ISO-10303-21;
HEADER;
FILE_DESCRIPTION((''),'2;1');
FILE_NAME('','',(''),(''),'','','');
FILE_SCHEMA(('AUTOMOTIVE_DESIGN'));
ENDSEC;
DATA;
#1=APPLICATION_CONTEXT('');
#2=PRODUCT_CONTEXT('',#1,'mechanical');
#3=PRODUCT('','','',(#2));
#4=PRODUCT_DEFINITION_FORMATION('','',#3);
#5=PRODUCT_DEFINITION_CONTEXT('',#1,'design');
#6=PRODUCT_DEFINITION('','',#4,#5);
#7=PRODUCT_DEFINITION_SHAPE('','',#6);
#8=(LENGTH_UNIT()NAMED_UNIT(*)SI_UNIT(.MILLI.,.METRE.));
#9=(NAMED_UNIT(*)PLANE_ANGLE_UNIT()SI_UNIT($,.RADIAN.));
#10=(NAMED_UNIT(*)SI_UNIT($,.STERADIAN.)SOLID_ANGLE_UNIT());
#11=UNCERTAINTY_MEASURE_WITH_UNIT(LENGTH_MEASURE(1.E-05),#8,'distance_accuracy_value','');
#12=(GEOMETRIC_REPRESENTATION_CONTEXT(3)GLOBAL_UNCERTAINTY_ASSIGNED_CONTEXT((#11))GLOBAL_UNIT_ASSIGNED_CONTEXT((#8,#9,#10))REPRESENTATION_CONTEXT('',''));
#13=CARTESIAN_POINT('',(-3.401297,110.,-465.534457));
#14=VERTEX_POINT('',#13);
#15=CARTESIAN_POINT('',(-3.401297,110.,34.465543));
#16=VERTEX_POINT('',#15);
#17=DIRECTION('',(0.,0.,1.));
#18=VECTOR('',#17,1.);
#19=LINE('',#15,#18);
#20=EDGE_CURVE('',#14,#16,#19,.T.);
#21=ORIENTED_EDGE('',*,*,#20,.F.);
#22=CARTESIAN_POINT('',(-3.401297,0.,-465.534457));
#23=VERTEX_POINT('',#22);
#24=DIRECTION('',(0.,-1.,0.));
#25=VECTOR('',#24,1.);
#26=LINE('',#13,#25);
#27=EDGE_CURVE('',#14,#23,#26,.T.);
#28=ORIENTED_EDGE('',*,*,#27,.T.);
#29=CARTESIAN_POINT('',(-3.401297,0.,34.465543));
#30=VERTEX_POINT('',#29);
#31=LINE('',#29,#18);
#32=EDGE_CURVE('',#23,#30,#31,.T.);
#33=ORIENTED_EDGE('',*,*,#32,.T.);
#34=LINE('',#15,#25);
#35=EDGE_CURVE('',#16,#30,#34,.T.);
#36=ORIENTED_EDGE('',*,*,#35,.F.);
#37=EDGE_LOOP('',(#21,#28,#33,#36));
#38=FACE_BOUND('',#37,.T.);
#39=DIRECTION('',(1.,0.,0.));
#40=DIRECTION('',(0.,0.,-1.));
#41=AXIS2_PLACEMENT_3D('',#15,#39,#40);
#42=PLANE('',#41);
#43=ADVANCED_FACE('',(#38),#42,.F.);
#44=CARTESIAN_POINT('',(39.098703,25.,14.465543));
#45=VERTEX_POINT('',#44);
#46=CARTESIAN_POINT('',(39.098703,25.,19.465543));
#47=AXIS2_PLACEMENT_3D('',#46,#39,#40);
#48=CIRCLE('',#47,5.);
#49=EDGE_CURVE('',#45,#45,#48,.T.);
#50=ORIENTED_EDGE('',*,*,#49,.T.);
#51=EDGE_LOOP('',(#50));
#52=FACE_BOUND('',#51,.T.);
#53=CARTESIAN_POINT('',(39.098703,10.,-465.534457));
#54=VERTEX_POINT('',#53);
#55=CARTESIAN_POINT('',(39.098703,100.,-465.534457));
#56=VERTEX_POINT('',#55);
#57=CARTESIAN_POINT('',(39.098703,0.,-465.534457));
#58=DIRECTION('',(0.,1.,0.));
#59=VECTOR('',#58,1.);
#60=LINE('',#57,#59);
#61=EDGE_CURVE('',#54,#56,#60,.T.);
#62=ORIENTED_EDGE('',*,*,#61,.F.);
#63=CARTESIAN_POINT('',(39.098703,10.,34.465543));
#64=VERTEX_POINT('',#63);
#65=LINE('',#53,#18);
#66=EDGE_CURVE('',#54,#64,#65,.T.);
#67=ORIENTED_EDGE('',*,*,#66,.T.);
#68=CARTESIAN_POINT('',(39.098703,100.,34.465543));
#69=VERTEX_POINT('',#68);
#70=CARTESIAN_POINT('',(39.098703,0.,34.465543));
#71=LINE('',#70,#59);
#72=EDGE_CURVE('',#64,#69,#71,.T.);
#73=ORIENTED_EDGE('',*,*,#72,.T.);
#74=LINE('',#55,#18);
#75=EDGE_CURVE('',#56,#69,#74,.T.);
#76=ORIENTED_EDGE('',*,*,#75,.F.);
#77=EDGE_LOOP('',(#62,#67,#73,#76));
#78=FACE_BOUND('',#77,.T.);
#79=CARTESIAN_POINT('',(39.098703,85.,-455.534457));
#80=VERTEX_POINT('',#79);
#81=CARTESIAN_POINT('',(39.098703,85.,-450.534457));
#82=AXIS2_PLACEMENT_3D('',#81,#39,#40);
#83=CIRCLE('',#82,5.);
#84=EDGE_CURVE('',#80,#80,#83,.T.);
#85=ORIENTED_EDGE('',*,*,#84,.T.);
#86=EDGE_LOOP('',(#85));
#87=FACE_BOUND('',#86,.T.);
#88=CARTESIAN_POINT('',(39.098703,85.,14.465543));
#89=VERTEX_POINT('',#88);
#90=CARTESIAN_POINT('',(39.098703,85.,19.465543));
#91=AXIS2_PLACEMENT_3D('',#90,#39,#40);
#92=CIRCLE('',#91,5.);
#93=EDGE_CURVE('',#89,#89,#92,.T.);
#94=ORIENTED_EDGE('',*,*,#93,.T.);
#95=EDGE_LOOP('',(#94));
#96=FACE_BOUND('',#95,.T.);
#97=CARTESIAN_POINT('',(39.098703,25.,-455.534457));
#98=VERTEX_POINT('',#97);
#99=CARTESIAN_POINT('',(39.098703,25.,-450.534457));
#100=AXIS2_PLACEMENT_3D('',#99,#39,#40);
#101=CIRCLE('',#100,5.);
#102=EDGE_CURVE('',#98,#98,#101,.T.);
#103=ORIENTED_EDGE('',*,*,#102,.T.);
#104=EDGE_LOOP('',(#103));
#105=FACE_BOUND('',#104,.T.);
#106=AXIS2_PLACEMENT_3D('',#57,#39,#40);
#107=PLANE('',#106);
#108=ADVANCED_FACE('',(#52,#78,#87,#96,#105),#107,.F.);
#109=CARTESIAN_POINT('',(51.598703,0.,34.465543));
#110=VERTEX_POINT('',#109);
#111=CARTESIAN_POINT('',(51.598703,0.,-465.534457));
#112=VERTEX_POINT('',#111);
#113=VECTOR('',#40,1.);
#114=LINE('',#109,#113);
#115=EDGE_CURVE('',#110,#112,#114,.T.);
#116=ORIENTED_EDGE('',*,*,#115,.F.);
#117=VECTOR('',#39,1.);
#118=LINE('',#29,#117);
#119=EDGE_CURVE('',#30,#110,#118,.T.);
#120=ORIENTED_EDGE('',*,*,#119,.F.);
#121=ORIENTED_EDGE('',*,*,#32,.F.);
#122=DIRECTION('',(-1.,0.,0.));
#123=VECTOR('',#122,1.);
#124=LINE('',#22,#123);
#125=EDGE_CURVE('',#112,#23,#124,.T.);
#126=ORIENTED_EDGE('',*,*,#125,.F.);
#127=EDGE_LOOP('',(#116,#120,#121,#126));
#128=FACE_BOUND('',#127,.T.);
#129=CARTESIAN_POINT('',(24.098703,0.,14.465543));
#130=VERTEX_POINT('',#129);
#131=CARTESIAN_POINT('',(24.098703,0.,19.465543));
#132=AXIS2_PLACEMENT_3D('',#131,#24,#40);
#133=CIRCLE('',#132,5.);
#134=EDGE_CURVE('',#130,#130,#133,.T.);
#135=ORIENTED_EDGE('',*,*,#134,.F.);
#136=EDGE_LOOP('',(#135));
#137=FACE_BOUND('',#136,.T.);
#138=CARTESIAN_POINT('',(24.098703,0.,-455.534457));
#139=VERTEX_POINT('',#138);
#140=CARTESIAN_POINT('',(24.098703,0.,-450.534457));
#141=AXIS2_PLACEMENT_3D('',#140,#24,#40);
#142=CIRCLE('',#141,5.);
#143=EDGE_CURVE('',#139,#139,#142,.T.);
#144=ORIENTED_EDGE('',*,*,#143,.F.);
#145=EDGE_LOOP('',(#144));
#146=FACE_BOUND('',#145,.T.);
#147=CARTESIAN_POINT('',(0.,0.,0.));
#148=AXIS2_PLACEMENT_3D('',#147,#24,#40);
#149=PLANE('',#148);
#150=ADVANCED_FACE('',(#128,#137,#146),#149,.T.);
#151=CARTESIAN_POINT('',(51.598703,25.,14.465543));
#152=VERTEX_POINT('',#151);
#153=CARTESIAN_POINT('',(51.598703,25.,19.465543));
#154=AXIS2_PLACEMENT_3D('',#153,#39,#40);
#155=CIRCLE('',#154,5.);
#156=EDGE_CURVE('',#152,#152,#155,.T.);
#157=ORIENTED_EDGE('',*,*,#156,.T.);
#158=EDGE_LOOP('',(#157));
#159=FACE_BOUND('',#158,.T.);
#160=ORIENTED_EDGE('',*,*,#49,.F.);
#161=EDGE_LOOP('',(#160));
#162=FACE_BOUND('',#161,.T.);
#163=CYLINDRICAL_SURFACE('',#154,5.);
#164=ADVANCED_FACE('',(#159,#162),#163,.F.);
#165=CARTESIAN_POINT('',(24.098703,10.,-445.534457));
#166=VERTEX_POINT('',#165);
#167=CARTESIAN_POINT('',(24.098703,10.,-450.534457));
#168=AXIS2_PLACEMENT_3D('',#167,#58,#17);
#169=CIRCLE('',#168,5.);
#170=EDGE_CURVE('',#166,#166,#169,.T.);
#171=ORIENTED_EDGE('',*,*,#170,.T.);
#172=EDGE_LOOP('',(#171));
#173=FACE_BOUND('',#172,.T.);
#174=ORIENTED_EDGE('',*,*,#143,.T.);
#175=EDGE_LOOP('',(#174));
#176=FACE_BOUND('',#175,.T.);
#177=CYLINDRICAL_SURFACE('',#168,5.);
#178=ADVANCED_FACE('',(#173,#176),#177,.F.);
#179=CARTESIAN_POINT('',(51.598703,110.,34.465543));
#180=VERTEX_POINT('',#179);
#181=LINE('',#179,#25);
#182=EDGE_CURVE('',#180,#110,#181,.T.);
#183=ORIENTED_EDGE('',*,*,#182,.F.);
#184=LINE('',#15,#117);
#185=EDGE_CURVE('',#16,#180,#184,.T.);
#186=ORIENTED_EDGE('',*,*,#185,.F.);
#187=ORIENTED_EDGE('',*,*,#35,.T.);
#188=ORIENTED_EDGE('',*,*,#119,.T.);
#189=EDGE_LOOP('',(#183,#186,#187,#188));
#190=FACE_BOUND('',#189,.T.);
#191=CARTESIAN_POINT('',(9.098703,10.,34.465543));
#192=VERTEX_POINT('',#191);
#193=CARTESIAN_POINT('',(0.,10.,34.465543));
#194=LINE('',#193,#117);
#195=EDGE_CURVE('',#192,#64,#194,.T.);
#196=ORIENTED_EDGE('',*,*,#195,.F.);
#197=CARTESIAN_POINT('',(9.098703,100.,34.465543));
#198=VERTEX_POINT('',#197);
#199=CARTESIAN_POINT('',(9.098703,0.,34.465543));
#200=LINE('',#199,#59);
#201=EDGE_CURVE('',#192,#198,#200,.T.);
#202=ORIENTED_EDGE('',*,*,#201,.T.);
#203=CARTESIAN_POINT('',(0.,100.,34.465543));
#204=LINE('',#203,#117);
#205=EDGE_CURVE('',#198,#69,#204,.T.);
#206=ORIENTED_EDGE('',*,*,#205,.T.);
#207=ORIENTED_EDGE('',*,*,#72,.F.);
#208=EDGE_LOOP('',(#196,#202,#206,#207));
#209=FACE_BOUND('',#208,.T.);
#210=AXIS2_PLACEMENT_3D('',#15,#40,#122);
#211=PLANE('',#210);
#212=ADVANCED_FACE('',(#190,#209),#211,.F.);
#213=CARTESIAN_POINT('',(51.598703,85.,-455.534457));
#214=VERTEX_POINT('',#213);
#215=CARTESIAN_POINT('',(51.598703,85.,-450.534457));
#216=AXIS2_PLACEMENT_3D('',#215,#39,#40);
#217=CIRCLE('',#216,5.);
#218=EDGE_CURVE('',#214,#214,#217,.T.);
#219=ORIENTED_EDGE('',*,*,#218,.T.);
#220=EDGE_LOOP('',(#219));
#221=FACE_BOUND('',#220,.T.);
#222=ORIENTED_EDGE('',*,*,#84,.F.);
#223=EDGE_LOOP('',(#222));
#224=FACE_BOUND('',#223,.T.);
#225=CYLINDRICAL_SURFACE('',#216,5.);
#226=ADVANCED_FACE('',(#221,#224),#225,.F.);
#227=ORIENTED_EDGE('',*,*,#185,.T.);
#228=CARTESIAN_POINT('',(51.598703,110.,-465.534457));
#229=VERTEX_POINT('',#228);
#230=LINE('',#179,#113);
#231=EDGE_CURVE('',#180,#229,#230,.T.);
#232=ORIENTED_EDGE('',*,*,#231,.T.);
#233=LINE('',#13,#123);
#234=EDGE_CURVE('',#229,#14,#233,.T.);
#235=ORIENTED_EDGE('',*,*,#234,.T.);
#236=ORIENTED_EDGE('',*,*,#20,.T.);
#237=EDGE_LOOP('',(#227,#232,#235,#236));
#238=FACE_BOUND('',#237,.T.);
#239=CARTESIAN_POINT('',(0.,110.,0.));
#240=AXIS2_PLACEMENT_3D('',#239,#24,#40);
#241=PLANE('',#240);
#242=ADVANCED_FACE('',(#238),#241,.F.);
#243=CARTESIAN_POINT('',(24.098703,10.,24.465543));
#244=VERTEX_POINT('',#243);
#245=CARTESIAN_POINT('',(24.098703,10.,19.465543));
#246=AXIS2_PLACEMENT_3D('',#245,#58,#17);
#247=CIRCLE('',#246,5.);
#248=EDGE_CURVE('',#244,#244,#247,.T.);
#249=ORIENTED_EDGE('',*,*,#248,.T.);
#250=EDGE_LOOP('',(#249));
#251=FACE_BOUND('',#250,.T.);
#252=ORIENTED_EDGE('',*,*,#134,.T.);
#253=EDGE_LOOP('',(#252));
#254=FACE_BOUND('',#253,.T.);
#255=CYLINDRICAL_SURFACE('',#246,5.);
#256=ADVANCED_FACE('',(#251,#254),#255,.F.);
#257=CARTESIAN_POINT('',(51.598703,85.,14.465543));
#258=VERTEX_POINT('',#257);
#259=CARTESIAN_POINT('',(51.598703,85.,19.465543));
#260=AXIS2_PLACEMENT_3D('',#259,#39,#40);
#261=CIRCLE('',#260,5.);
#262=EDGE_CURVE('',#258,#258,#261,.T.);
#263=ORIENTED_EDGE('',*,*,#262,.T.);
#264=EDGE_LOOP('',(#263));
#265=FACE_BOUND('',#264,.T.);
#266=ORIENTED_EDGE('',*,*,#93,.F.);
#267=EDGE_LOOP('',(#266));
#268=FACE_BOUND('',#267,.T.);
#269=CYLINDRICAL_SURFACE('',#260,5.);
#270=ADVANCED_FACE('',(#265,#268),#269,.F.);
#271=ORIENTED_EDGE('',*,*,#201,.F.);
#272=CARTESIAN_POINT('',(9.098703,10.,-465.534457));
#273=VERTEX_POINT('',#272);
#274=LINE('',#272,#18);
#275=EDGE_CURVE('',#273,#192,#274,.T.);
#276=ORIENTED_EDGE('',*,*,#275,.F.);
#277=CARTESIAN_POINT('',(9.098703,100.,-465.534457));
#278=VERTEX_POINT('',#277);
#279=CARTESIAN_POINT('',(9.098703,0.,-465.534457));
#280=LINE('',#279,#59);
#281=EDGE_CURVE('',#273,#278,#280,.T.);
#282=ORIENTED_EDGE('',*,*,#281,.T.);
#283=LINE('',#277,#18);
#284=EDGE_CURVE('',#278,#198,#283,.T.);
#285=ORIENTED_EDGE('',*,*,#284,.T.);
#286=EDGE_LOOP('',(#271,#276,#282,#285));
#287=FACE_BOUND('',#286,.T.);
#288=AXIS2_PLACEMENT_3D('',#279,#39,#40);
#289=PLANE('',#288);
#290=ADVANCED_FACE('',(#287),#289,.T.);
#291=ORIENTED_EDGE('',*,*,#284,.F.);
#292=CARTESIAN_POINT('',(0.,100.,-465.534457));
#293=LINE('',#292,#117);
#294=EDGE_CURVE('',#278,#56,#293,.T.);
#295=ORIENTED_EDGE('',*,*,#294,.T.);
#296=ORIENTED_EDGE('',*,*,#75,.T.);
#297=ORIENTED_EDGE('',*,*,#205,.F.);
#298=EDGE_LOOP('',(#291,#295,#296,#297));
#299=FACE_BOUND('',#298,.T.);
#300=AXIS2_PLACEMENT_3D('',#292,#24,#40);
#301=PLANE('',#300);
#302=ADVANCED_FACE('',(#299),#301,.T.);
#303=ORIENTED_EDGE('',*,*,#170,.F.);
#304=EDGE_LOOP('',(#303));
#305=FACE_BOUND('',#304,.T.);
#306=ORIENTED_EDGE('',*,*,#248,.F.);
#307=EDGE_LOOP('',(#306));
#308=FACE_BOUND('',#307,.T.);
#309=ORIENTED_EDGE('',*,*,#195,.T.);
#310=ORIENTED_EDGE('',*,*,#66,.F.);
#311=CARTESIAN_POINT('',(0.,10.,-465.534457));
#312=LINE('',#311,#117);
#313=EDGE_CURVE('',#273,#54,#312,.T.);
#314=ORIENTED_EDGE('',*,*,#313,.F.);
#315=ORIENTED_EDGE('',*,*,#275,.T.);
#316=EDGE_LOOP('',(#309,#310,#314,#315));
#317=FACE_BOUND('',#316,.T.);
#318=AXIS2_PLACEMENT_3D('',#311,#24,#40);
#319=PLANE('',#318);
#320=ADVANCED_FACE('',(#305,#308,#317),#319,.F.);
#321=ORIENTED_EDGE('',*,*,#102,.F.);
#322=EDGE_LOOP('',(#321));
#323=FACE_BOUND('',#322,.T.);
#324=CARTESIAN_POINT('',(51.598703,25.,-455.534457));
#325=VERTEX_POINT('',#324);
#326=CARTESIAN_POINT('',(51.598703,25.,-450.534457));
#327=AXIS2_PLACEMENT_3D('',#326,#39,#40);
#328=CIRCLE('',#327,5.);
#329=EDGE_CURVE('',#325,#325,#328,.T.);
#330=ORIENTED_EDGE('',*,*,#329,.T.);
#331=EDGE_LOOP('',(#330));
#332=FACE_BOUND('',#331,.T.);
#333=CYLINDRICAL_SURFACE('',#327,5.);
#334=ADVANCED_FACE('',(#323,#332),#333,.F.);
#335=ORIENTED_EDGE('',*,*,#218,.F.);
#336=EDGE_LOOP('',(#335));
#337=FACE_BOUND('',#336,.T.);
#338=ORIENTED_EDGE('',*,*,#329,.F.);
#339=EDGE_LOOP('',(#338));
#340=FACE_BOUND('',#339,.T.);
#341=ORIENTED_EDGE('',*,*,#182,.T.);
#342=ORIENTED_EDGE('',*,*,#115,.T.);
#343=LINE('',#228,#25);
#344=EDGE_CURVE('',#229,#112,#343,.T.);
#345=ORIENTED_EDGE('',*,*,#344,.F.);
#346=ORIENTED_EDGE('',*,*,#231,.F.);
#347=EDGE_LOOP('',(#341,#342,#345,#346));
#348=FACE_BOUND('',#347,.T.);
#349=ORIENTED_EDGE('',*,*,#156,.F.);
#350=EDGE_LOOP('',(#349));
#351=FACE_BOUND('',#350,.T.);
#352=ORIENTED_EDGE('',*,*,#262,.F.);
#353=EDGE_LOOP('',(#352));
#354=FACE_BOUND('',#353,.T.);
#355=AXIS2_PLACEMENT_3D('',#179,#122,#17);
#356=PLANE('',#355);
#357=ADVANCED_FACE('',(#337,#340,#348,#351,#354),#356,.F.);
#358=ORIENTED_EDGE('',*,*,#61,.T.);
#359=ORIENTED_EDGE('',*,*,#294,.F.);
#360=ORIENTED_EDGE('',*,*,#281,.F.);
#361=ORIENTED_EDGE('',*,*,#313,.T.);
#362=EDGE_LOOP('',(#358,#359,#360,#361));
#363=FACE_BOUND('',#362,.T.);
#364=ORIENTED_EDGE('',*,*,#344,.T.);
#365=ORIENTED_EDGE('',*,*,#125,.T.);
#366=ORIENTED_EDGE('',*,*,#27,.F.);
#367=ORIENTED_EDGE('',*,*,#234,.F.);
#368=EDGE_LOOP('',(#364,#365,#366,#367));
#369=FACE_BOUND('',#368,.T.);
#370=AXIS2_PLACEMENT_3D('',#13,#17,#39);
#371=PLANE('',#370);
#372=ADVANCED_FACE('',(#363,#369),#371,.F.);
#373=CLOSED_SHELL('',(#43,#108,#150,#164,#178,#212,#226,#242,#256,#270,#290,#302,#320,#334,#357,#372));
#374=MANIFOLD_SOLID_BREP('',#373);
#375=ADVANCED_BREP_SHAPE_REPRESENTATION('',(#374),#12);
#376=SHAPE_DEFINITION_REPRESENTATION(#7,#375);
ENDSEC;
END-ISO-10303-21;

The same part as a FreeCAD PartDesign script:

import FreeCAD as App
import Part
import Sketcher
from FreeCAD import Vector
Q = App.Units.Quantity


def add_polygon(sketch, points):
    """Adds a closed chain of lines whose ends are joined by coincident constraints."""
    first, n = sketch.GeometryCount, len(points)
    for a, b in zip(points, points[1:] + points[:1]):
        sketch.addGeometry(Part.LineSegment(App.Vector(*a, 0), App.Vector(*b, 0)), False)
    for i in range(n):
        sketch.addConstraint(Sketcher.Constraint("Coincident", first + i, 2, first + (i + 1) % n, 1))

doc = App.newDocument("Part")
params = doc.addObject("Spreadsheet::Sheet", "Params")
for row, (alias, value) in enumerate([
    ("sketch1_width", "55 mm"),
    ("sketch1_height", "500 mm"),
    ("pad1_length", "110 mm"),
    ("sketch2_width", "30 mm"),
    ("sketch2_height", "90 mm"),
    ("pocket1_length", "500 mm"),
    ("sketch3_diameter", "9 mm"),
    ("hole_diameter", "9 mm"),
    ("hole_depth", "23 mm"),
    ("hole_cbore_diameter", "10 mm"),
    ("hole_cbore_depth", "20 mm"),
    ("sketch4_diameter", "9 mm"),
    ("hole2_diameter", "9 mm"),
    ("hole2_depth", "23 mm"),
    ("hole2_cbore_diameter", "10 mm"),
    ("hole2_cbore_depth", "20 mm"),
    ("sketch5_diameter", "9 mm"),
    ("hole3_diameter", "9 mm"),
    ("hole3_depth", "23 mm"),
    ("hole3_cbore_diameter", "10 mm"),
    ("hole3_cbore_depth", "20 mm"),
], start=1):
    params.set(f"A{row}", alias)
    params.set(f"B{row}", "=" + value)
    params.setAlias(f"B{row}", alias)

body = doc.addObject("PartDesign::Body", "Body")

# Sketch on XZ plane
sketch1 = body.newObject("Sketcher::SketchObject", "Sketch")
sketch1.AttachmentSupport = (doc.getObject("XZ_Plane"), [""])
sketch1.MapMode = "FlatFace"
add_polygon(sketch1, [(-3, -466), (-3, 34), (52, 34), (52, -466)])  # lines 0-3
sketch1.addConstraint(Sketcher.Constraint("Vertical", 0))
sketch1.addConstraint(Sketcher.Constraint("Horizontal", 1))
sketch1.addConstraint(Sketcher.Constraint("Vertical", 2))
sketch1.addConstraint(Sketcher.Constraint("Horizontal", 3))
sketch1.addConstraint(Sketcher.Constraint("DistanceX", 1, 1, 1, 2, Q("55 mm")))
sketch1.addConstraint(Sketcher.Constraint("DistanceY", 0, 1, 0, 2, Q("500 mm")))
sketch1.addConstraint(Sketcher.Constraint("DistanceX", 0, 2, -1, 1, Q("3.401297 mm")))
sketch1.addConstraint(Sketcher.Constraint("DistanceY", -1, 1, 0, 2, Q("34.465543 mm")))
sketch1.setExpression("Constraints[8]", "Params.sketch1_width")
sketch1.setExpression("Constraints[9]", "Params.sketch1_height")
pad1 = body.newObject("PartDesign::Pad", "Pad")
pad1.Profile = sketch1
pad1.setExpression("Length", "Params.pad1_length")
pad1.Reversed = True

# Sketch on XY plane
sketch2 = body.newObject("Sketcher::SketchObject", "Sketch001")
sketch2.AttachmentSupport = (doc.getObject("XY_Plane"), [""])
sketch2.MapMode = "FlatFace"
sketch2.AttachmentOffset = App.Placement(Vector(0, 0, 34.465543), App.Rotation())
add_polygon(sketch2, [(9, 100), (9, 10), (39, 10), (39, 100)])  # lines 0-3
sketch2.addConstraint(Sketcher.Constraint("Vertical", 0))
sketch2.addConstraint(Sketcher.Constraint("Horizontal", 1))
sketch2.addConstraint(Sketcher.Constraint("Vertical", 2))
sketch2.addConstraint(Sketcher.Constraint("Horizontal", 3))
sketch2.addConstraint(Sketcher.Constraint("DistanceX", 1, 1, 1, 2, Q("30 mm")))
sketch2.addConstraint(Sketcher.Constraint("DistanceY", 0, 2, 0, 1, Q("90 mm")))
sketch2.addConstraint(Sketcher.Constraint("DistanceY", -1, 1, 0, 2, Q("10 mm")))
sketch2.addConstraint(Sketcher.Constraint("DistanceX", -1, 1, 0, 2, Q("9.098703 mm")))
sketch2.setExpression("Constraints[8]", "Params.sketch2_width")
sketch2.setExpression("Constraints[9]", "Params.sketch2_height")
pocket1 = body.newObject("PartDesign::Pocket", "Pocket")
pocket1.Profile = sketch2
pocket1.setExpression("Length", "Params.pocket1_length")

# Sketch on XZ plane
sketch3 = body.newObject("Sketcher::SketchObject", "Sketch002")
sketch3.AttachmentSupport = (doc.getObject("XZ_Plane"), [""])
sketch3.MapMode = "FlatFace"
sketch3.AttachmentOffset = App.Placement(Vector(0, 0, -10), App.Rotation())
sketch3.addGeometry(Part.Circle(Vector(24.1, -450.5, 0), Vector(0, 0, 1), 4.5), False)
sketch3.addGeometry(Part.Circle(Vector(24.1, 19.5, 0), Vector(0, 0, 1), 4.5), False)
sketch3.addConstraint(Sketcher.Constraint("Equal", 0, 1))
sketch3.addConstraint(Sketcher.Constraint("Vertical", 0, 3, 1, 3))
sketch3.addConstraint(Sketcher.Constraint("Diameter", 0, Q("9 mm")))
sketch3.addConstraint(Sketcher.Constraint("DistanceY", 0, 3, 1, 3, Q("470 mm")))
sketch3.addConstraint(Sketcher.Constraint("DistanceX", -1, 1, 0, 3, Q("24.098703 mm")))
sketch3.addConstraint(Sketcher.Constraint("DistanceY", 0, 3, -1, 1, Q("450.534457 mm")))
sketch3.setExpression("Constraints[2]", "Params.sketch3_diameter")
doc.recompute()
hole = body.newObject("PartDesign::Hole", "Hole")
hole.Profile = sketch3
hole.ThreadType = "None"
hole.setExpression("Diameter", "Params.hole_diameter")
hole.DepthType = "Dimension"
hole.setExpression("Depth", "Params.hole_depth")
hole.DrillPoint = "Angled"
hole.DrillPointAngle = 118
hole.HoleCutType = "Counterbore"
hole.setExpression("HoleCutDiameter", "Params.hole_cbore_diameter")
hole.setExpression("HoleCutDepth", "Params.hole_cbore_depth")
hole.Reversed = True

# Sketch on YZ plane
sketch4 = body.newObject("Sketcher::SketchObject", "Sketch003")
sketch4.AttachmentSupport = (doc.getObject("YZ_Plane"), [""])
sketch4.MapMode = "FlatFace"
sketch4.AttachmentOffset = App.Placement(Vector(0, 0, 51.598703), App.Rotation())
sketch4.addGeometry(Part.Circle(Vector(85, -450.5, 0), Vector(0, 0, 1), 4.5), False)
sketch4.addGeometry(Part.Circle(Vector(25, -450.5, 0), Vector(0, 0, 1), 4.5), False)
sketch4.addGeometry(Part.Circle(Vector(85, 19.5, 0), Vector(0, 0, 1), 4.5), False)
sketch4.addGeometry(Part.Circle(Vector(25, 19.5, 0), Vector(0, 0, 1), 4.5), False)
sketch4.addConstraint(Sketcher.Constraint("Equal", 0, 1))
sketch4.addConstraint(Sketcher.Constraint("Equal", 1, 2))
sketch4.addConstraint(Sketcher.Constraint("Equal", 2, 3))
sketch4.addConstraint(Sketcher.Constraint("Horizontal", 0, 3, 1, 3))
sketch4.addConstraint(Sketcher.Constraint("Horizontal", 2, 3, 3, 3))
sketch4.addConstraint(Sketcher.Constraint("Vertical", 0, 3, 2, 3))
sketch4.addConstraint(Sketcher.Constraint("Vertical", 1, 3, 3, 3))
sketch4.addConstraint(Sketcher.Constraint("Diameter", 0, Q("9 mm")))
sketch4.addConstraint(Sketcher.Constraint("DistanceX", -1, 1, 0, 3, Q("85 mm")))
sketch4.addConstraint(Sketcher.Constraint("DistanceX", -1, 1, 1, 3, Q("25 mm")))
sketch4.addConstraint(Sketcher.Constraint("DistanceY", 0, 3, 2, 3, Q("470 mm")))
sketch4.addConstraint(Sketcher.Constraint("DistanceY", 0, 3, -1, 1, Q("450.534457 mm")))
sketch4.setExpression("Constraints[7]", "Params.sketch4_diameter")
doc.recompute()
hole2 = body.newObject("PartDesign::Hole", "Hole001")
hole2.Profile = sketch4
hole2.ThreadType = "None"
hole2.setExpression("Diameter", "Params.hole2_diameter")
hole2.DepthType = "Dimension"
hole2.setExpression("Depth", "Params.hole2_depth")
hole2.DrillPoint = "Angled"
hole2.DrillPointAngle = 118
hole2.HoleCutType = "Counterbore"
hole2.setExpression("HoleCutDiameter", "Params.hole2_cbore_diameter")
hole2.setExpression("HoleCutDepth", "Params.hole2_cbore_depth")

# Sketch on YZ plane
sketch5 = body.newObject("Sketcher::SketchObject", "Sketch004")
sketch5.AttachmentSupport = (doc.getObject("YZ_Plane"), [""])
sketch5.MapMode = "FlatFace"
sketch5.AttachmentOffset = App.Placement(Vector(0, 0, 233.947764), App.Rotation())
sketch5.addGeometry(Part.Circle(Vector(74.1, 0, 0), Vector(0, 0, 1), 4.5), False)
sketch5.addConstraint(Sketcher.Constraint("PointOnObject", 0, 3, -1))
sketch5.addConstraint(Sketcher.Constraint("Diameter", 0, Q("9 mm")))
sketch5.addConstraint(Sketcher.Constraint("DistanceX", -1, 1, 0, 3, Q("74.109982 mm")))
sketch5.setExpression("Constraints[1]", "Params.sketch5_diameter")
doc.recompute()
hole3 = body.newObject("PartDesign::Hole", "Hole002")
hole3.Profile = sketch5
hole3.ThreadType = "None"
hole3.setExpression("Diameter", "Params.hole3_diameter")
hole3.DepthType = "Dimension"
hole3.setExpression("Depth", "Params.hole3_depth")
hole3.DrillPoint = "Angled"
hole3.DrillPointAngle = 118
hole3.HoleCutType = "Counterbore"
hole3.setExpression("HoleCutDiameter", "Params.hole3_cbore_diameter")
hole3.setExpression("HoleCutDepth", "Params.hole3_cbore_depth")

doc.recompute()
